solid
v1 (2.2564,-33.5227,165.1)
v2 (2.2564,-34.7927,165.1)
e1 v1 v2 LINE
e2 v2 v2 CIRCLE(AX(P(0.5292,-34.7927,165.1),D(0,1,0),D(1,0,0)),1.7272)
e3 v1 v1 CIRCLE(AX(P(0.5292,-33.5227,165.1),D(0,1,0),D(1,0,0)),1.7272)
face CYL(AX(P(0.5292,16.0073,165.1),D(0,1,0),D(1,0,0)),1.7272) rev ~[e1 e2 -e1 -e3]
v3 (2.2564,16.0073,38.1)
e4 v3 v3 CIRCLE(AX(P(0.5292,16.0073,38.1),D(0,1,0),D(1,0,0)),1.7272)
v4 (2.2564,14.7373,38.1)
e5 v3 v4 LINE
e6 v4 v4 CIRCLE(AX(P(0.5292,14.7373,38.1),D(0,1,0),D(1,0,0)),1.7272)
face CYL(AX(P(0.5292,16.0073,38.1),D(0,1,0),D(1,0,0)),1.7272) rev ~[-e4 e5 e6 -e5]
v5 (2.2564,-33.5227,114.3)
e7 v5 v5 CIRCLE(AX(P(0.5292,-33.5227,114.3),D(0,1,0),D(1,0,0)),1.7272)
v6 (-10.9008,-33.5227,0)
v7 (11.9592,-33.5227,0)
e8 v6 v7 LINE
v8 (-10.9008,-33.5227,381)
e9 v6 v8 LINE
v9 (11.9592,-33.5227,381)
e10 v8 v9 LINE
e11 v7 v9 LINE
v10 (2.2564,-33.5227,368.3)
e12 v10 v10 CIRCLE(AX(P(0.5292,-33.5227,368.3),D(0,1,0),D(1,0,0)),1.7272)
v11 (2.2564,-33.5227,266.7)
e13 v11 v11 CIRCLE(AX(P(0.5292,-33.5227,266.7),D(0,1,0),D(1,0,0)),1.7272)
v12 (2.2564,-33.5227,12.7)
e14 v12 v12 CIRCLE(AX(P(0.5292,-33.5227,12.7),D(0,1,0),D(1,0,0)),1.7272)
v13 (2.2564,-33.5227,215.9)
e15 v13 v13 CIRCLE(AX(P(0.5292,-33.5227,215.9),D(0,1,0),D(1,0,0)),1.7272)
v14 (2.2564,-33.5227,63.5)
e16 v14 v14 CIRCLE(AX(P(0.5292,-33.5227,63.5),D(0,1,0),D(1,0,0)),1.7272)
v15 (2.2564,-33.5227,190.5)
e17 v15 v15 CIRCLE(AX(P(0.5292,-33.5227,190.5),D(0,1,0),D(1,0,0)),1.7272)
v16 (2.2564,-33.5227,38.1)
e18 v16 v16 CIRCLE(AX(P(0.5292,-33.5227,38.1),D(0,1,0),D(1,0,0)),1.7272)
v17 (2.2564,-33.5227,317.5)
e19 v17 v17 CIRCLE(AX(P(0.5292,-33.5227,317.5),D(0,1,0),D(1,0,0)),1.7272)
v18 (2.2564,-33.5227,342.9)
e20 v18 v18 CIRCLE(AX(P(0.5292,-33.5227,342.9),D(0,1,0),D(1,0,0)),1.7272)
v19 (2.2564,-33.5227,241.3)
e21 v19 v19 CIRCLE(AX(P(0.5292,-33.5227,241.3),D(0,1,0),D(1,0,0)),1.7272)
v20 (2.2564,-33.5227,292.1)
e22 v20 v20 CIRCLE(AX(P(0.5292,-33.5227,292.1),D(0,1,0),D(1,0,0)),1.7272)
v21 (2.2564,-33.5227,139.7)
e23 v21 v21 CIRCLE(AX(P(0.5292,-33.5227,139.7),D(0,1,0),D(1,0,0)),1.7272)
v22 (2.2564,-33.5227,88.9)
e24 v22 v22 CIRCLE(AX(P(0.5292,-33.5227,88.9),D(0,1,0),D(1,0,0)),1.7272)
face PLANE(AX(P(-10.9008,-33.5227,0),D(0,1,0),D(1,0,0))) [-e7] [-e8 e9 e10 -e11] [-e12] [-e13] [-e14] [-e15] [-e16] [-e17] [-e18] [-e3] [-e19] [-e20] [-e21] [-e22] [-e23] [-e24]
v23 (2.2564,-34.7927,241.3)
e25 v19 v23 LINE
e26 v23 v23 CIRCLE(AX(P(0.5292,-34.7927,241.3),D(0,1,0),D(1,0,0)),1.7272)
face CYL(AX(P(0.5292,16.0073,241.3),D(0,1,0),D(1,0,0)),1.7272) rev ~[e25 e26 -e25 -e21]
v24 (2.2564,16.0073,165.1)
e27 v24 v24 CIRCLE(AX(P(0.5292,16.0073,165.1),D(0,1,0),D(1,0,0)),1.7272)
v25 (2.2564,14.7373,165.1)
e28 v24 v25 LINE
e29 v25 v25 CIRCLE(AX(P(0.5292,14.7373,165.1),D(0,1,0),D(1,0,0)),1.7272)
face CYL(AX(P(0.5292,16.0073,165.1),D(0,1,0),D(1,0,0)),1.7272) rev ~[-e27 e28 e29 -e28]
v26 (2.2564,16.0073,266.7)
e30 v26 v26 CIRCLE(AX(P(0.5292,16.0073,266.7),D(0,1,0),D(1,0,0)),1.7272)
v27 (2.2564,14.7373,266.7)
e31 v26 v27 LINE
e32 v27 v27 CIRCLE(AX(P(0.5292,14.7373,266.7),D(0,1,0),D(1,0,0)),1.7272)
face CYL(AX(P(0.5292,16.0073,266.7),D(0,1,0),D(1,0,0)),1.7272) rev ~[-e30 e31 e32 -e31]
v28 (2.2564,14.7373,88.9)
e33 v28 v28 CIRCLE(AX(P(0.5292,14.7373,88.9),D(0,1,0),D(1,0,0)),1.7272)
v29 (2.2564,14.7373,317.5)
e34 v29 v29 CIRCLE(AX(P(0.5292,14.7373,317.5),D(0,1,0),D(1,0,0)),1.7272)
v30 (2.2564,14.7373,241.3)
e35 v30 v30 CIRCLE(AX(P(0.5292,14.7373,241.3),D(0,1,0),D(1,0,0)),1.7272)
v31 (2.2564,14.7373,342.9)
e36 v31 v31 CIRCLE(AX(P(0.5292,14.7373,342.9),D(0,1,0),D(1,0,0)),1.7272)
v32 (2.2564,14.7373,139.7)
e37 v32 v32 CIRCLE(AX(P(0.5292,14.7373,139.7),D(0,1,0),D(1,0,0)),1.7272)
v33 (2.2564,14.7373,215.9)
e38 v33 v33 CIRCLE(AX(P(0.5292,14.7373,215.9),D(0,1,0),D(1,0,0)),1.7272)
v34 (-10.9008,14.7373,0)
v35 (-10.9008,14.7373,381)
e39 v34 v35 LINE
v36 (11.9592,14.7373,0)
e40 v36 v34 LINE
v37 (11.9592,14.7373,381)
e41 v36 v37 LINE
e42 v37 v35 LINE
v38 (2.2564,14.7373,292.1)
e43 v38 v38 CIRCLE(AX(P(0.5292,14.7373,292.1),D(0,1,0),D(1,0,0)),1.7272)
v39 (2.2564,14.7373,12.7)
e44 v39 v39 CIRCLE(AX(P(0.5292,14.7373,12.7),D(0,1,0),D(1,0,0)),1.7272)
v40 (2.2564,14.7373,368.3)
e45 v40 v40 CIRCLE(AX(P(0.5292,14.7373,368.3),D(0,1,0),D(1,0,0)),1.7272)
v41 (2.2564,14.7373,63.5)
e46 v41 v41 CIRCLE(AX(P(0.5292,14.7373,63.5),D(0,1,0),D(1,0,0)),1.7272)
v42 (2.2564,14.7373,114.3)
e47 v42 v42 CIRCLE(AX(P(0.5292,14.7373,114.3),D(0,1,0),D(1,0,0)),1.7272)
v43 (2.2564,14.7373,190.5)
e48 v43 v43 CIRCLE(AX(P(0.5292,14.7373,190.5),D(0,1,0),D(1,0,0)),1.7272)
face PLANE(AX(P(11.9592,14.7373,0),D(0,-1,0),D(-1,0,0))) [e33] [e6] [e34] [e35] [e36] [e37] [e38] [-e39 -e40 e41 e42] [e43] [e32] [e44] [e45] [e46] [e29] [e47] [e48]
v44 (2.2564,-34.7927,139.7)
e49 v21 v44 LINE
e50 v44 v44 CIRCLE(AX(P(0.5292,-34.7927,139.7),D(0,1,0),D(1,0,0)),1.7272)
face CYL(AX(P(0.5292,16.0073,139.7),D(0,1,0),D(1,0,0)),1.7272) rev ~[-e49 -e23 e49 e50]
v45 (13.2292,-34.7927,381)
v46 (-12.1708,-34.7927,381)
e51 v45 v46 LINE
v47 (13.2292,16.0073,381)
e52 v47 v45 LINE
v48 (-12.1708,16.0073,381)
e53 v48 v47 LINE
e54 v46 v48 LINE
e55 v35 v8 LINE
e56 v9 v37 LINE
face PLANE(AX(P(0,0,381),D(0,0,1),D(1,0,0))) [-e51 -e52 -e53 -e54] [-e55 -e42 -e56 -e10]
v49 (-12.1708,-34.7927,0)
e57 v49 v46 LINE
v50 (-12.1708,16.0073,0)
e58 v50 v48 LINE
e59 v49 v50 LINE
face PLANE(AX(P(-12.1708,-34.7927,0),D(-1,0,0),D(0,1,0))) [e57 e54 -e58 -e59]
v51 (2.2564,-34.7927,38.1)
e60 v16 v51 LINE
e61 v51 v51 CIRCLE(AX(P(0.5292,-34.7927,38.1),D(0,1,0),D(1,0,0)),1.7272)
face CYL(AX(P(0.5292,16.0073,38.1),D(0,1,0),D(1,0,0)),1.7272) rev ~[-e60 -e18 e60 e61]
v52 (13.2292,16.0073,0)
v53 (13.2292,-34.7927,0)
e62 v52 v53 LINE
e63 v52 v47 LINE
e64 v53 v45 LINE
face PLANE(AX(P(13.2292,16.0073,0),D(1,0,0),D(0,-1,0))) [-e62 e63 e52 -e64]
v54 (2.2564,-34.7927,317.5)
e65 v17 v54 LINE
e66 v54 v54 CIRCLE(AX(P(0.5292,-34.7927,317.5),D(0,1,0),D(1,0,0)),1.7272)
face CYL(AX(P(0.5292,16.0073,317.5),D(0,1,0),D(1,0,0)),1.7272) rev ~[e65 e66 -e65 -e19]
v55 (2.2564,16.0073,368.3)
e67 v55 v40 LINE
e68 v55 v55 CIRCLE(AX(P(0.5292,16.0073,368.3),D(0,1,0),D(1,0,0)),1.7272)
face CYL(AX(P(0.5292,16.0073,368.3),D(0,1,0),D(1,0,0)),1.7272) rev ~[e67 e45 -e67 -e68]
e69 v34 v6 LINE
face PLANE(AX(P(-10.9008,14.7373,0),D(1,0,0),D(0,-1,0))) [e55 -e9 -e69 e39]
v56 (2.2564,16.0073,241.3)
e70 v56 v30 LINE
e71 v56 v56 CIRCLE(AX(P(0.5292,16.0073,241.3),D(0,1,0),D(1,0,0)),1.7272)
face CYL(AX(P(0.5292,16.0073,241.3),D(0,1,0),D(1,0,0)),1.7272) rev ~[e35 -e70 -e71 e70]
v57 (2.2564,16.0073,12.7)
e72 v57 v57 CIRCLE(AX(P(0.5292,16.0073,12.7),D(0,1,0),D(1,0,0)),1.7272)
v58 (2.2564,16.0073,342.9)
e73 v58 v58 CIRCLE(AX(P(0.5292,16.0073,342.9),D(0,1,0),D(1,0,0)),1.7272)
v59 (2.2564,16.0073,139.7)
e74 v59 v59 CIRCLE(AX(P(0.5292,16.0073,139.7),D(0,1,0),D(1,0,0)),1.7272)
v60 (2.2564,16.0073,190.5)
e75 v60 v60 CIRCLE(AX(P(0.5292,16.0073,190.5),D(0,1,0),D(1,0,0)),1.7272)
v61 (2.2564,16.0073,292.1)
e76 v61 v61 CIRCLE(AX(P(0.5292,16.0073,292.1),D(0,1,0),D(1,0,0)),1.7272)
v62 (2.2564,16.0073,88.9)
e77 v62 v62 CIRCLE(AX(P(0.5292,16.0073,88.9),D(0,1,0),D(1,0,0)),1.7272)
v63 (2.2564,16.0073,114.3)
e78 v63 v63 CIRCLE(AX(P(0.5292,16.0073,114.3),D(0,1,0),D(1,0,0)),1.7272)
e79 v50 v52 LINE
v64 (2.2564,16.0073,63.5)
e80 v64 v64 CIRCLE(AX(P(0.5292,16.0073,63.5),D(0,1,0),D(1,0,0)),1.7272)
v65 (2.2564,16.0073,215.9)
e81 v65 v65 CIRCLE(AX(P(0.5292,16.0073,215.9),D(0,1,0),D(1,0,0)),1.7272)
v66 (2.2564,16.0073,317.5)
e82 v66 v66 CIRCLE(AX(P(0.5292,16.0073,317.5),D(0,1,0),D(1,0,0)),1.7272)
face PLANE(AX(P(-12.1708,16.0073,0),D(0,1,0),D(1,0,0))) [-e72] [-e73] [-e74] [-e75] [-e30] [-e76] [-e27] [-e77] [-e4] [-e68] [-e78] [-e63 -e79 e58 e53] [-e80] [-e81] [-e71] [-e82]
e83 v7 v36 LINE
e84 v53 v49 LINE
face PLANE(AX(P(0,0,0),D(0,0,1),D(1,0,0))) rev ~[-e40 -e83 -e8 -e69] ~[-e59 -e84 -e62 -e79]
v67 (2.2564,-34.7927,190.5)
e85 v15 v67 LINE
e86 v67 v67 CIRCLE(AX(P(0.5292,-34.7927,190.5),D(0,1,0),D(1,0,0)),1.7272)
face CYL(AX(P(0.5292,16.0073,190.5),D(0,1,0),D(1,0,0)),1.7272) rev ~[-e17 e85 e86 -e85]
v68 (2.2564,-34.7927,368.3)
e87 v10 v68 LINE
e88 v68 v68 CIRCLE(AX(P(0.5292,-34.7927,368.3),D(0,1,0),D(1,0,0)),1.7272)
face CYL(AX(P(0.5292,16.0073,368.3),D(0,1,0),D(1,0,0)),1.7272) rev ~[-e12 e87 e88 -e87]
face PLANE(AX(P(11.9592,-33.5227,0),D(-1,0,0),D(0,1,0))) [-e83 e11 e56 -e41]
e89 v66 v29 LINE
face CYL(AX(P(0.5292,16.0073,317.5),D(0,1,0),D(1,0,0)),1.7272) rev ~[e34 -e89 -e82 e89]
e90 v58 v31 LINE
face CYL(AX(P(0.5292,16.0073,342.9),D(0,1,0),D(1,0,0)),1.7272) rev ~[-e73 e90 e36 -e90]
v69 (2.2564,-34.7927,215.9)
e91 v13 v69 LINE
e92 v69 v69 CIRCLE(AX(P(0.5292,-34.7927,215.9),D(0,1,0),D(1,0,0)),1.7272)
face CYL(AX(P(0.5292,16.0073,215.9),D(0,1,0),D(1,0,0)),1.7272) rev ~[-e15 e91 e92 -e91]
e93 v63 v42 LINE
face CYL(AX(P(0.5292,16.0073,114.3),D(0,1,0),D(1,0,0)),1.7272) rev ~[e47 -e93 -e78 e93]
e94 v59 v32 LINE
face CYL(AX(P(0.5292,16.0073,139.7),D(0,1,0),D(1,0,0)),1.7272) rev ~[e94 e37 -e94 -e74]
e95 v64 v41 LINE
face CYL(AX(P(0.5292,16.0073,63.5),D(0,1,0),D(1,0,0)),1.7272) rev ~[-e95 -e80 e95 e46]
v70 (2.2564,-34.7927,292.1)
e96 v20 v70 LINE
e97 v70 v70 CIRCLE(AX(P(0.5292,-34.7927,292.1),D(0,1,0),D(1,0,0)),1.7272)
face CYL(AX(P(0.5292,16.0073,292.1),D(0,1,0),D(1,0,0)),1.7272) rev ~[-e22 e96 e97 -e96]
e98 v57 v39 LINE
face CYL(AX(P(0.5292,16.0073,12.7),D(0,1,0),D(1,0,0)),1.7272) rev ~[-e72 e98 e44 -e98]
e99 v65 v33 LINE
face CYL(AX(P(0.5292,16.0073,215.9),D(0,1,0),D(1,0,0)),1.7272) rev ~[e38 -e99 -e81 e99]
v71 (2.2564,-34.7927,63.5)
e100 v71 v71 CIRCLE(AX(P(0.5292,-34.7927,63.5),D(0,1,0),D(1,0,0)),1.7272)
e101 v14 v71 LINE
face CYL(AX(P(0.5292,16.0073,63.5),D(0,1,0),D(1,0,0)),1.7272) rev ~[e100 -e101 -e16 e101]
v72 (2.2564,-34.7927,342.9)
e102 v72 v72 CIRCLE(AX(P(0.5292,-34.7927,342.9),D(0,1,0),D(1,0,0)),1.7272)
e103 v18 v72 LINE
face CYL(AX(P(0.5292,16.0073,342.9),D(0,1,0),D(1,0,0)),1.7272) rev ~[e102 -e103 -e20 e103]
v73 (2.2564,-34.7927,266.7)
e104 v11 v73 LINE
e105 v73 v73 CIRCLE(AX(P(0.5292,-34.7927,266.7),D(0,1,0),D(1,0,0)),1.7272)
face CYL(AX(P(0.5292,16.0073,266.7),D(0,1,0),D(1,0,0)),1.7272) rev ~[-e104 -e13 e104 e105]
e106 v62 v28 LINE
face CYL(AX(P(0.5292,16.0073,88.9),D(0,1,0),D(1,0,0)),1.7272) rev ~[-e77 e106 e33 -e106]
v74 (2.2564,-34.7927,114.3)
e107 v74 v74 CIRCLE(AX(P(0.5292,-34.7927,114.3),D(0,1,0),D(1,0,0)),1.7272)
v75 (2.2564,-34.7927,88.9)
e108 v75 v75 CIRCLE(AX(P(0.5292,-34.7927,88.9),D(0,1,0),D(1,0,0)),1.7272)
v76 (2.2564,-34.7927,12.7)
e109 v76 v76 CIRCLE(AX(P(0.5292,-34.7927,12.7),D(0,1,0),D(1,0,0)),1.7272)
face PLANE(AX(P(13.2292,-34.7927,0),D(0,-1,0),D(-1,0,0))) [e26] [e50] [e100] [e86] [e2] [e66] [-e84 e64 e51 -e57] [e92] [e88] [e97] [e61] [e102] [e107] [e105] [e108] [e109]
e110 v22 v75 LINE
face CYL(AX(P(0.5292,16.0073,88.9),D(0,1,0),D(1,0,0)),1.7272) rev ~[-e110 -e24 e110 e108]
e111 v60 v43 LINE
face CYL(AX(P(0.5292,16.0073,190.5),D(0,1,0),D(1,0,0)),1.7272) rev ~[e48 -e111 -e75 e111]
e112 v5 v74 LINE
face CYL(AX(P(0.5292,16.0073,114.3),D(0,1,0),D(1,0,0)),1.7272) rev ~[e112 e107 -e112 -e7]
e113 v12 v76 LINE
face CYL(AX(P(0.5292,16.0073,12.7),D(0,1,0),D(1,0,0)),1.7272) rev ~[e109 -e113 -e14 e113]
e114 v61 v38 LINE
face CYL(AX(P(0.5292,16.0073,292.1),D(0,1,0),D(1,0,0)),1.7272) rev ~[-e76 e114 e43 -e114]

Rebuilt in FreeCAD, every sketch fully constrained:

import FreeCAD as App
import Part
import Sketcher
Q = App.Units.Quantity

doc = App.newDocument("Part")
body = doc.addObject("PartDesign::Body", "Body")

# Sketch on XY plane
sketch1 = body.newObject("Sketcher::SketchObject", "Sketch")
sketch1.AttachmentSupport = (doc.getObject("XY_Plane"), [""])
sketch1.MapMode = "FlatFace"
sketch1.addGeometry([
    Part.LineSegment(App.Vector(13, 16, 0), App.Vector(-12, 16, 0)),  # 0
    Part.LineSegment(App.Vector(-12, 16, 0), App.Vector(-12, -35, 0)),  # 1
    Part.LineSegment(App.Vector(-12, -35, 0), App.Vector(13, -35, 0)),  # 2
    Part.LineSegment(App.Vector(13, -35, 0), App.Vector(13, 16, 0)),  # 3
    Part.LineSegment(App.Vector(-11, 15, 0), App.Vector(12, 15, 0)),  # 4
    Part.LineSegment(App.Vector(12, 15, 0), App.Vector(12, -34, 0)),  # 5
    Part.LineSegment(App.Vector(12, -34, 0), App.Vector(-11, -34, 0)),  # 6
    Part.LineSegment(App.Vector(-11, -34, 0), App.Vector(-11, 15, 0)),  # 7
], False)
sketch1.addConstraint([
    Sketcher.Constraint("Coincident", 0, 2, 1, 1),
    Sketcher.Constraint("Coincident", 1, 2, 2, 1),
    Sketcher.Constraint("Coincident", 2, 2, 3, 1),
    Sketcher.Constraint("Coincident", 3, 2, 0, 1),
    Sketcher.Constraint("Coincident", 4, 2, 5, 1),
    Sketcher.Constraint("Coincident", 5, 2, 6, 1),
    Sketcher.Constraint("Coincident", 6, 2, 7, 1),
    Sketcher.Constraint("Coincident", 7, 2, 4, 1),
    Sketcher.Constraint("Horizontal", 0),
    Sketcher.Constraint("Vertical", 1),
    Sketcher.Constraint("Horizontal", 2),
    Sketcher.Constraint("Vertical", 3),
    Sketcher.Constraint("Horizontal", 4),
    Sketcher.Constraint("Vertical", 5),
    Sketcher.Constraint("Horizontal", 6),
    Sketcher.Constraint("Vertical", 7),
    Sketcher.Constraint("DistanceX", 0, 2, 0, 1, Q("1 in")),
    Sketcher.Constraint("DistanceY", 1, 2, 1, 1, Q("2 in")),
    Sketcher.Constraint("DistanceX", 4, 2, 3, 2, Q("0.05 in")),
    Sketcher.Constraint("DistanceY", 4, 2, 3, 2, Q("0.05 in")),
    Sketcher.Constraint("DistanceY", 2, 2, 5, 2, Q("0.05 in")),
    Sketcher.Constraint("DistanceX", 1, 2, 6, 2, Q("0.05 in")),
    Sketcher.Constraint("DistanceY", -1, 1, 0, 2, Q("0.6302 in")),
    Sketcher.Constraint("DistanceX", 0, 2, -1, 1, 12.1708),
])
pad1 = body.newObject("PartDesign::Pad", "Pad")
pad1.Profile = sketch1
pad1.Length = Q("15 in")

# Sketch on XZ plane
sketch2 = body.newObject("Sketcher::SketchObject", "Sketch001")
sketch2.AttachmentSupport = (doc.getObject("XZ_Plane"), [""])
sketch2.MapMode = "FlatFace"
sketch2.AttachmentOffset = App.Placement(App.Vector(0, 0, -0.6302087 * 25.4), App.Rotation())
sketch2.addGeometry(Part.Circle(App.Vector(0.5, 12.7, 0), App.Vector(0, 0, 1), 1.7), False)
sketch2.addConstraint([
    Sketcher.Constraint("Diameter", 0, Q("0.136 in")),
    Sketcher.Constraint("DistanceY", -1, 1, 0, 3, Q("0.5 in")),
    Sketcher.Constraint("DistanceX", -1, 1, 0, 3, 0.5292),
])
pocket1 = body.newObject("PartDesign::Pocket", "Pocket")
pocket1.Profile = sketch2
pocket1.Type = "ThroughAll"
pocket1.Reversed = True
doc.recompute()

linearpattern = body.newObject("PartDesign::LinearPattern", "LinearPattern")
linearpattern.Originals = [pocket1]
linearpattern.Direction = (doc.getObject("Z_Axis"), [""])
linearpattern.Mode = "offset"
linearpattern.Offset = Q("1 in")
linearpattern.Occurrences = 38
body.Tip = linearpattern

doc.recompute()
